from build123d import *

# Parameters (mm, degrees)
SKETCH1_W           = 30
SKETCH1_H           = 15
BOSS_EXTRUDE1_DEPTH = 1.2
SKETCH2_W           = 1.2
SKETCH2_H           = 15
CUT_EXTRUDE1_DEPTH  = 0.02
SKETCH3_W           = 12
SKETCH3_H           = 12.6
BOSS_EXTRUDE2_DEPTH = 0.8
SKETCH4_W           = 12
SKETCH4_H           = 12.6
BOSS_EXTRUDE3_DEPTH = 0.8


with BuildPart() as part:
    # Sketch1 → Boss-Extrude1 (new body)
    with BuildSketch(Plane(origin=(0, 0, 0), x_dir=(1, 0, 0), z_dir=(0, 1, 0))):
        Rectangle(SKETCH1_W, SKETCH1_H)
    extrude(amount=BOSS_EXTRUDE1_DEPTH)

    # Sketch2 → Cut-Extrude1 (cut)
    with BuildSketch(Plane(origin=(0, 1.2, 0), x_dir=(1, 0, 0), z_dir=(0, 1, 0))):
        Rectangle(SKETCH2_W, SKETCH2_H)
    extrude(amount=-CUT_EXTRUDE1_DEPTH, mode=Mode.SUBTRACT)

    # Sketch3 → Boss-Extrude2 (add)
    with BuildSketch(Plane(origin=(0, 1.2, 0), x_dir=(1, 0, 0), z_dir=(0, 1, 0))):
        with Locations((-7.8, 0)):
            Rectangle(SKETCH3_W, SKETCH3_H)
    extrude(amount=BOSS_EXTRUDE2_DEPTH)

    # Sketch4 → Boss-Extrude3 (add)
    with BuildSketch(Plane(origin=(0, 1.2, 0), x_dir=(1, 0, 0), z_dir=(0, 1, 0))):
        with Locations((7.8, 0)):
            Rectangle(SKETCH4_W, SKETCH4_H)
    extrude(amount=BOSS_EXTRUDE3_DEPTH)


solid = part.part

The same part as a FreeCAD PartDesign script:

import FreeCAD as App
import Part
import Sketcher
Q = App.Units.Quantity


def add_polygon(sketch, points):
    """Adds a closed chain of lines whose ends are joined by coincident constraints."""
    first, n = sketch.GeometryCount, len(points)
    for a, b in zip(points, points[1:] + points[:1]):
        sketch.addGeometry(Part.LineSegment(App.Vector(*a, 0), App.Vector(*b, 0)), False)
    for i in range(n):
        sketch.addConstraint(Sketcher.Constraint("Coincident", first + i, 2, first + (i + 1) % n, 1))

doc = App.newDocument("Part")
body = doc.addObject("PartDesign::Body", "Body")

sketch1 = body.newObject("Sketcher::SketchObject", "Sketch")
sketch1.AttachmentSupport = (doc.getObject("XZ_Plane"), [""])
sketch1.MapMode = "FlatFace"
add_polygon(sketch1, [(-15, -8), (-15, 8), (15, 8), (15, -8)])
sketch1.addConstraint(Sketcher.Constraint("Vertical", 0))
sketch1.addConstraint(Sketcher.Constraint("Horizontal", 1))
sketch1.addConstraint(Sketcher.Constraint("Vertical", 2))
sketch1.addConstraint(Sketcher.Constraint("Horizontal", 3))
sketch1.addConstraint(Sketcher.Constraint("Symmetric", 0, 2, 2, 2, -1, 1))
sketch1.addConstraint(Sketcher.Constraint("DistanceX", 1, 1, 1, 2, Q("30 mm")))
sketch1.addConstraint(Sketcher.Constraint("DistanceY", 0, 1, 0, 2, Q("15 mm")))
pad1 = body.newObject("PartDesign::Pad", "Pad")
pad1.Profile = sketch1
pad1.Length = 1.2
pad1.Reversed = True

sketch2 = body.newObject("Sketcher::SketchObject", "Sketch001")
sketch2.AttachmentSupport = (doc.getObject("XZ_Plane"), [""])
sketch2.MapMode = "FlatFace"
sketch2.AttachmentOffset = App.Placement(App.Vector(0, 0, -1.2), App.Rotation())
add_polygon(sketch2, [(-0.6, -7.5), (-0.6, 7.5), (0.6, 7.5), (0.6, -7.5)])
sketch2.addConstraint(Sketcher.Constraint("Vertical", 0))
sketch2.addConstraint(Sketcher.Constraint("Horizontal", 1))
sketch2.addConstraint(Sketcher.Constraint("Vertical", 2))
sketch2.addConstraint(Sketcher.Constraint("Horizontal", 3))
sketch2.addConstraint(Sketcher.Constraint("Symmetric", 0, 2, 2, 2, -1, 1))
sketch2.addConstraint(Sketcher.Constraint("DistanceY", 0, 1, 0, 2, Q("15 mm")))
sketch2.addConstraint(Sketcher.Constraint("DistanceX", 1, 1, 1, 2, Q("1.2 mm")))
pocket1 = body.newObject("PartDesign::Pocket", "Pocket")
pocket1.Profile = sketch2
pocket1.Length = 0.02
pocket1.Reversed = True

sketch3 = body.newObject("Sketcher::SketchObject", "Sketch002")
sketch3.AttachmentSupport = (doc.getObject("XZ_Plane"), [""])
sketch3.MapMode = "FlatFace"
sketch3.AttachmentOffset = App.Placement(App.Vector(0, 0, -1.2), App.Rotation())
add_polygon(sketch3, [(-14, -6), (-14, 6), (-2, 6), (-2, -6)])
sketch3.addConstraint(Sketcher.Constraint("Vertical", 0))
sketch3.addConstraint(Sketcher.Constraint("Horizontal", 1))
sketch3.addConstraint(Sketcher.Constraint("Vertical", 2))
sketch3.addConstraint(Sketcher.Constraint("Horizontal", 3))
sketch3.addConstraint(Sketcher.Constraint("DistanceX", 1, 1, 1, 2, Q("12 mm")))
sketch3.addConstraint(Sketcher.Constraint("DistanceY", 0, 1, 0, 2, Q("12.6 mm")))
sketch3.addConstraint(Sketcher.Constraint("DistanceX", 0, 2, -1, 1, Q("13.8 mm")))
sketch3.addConstraint(Sketcher.Constraint("DistanceY", -1, 1, 0, 2, Q("6.3 mm")))
pad2 = body.newObject("PartDesign::Pad", "Pad001")
pad2.Profile = sketch3
pad2.Length = 0.8
pad2.Reversed = True

sketch4 = body.newObject("Sketcher::SketchObject", "Sketch003")
sketch4.AttachmentSupport = (doc.getObject("XZ_Plane"), [""])
sketch4.MapMode = "FlatFace"
sketch4.AttachmentOffset = App.Placement(App.Vector(0, 0, -1.2), App.Rotation())
add_polygon(sketch4, [(2, -6), (2, 6), (14, 6), (14, -6)])
sketch4.addConstraint(Sketcher.Constraint("Vertical", 0))
sketch4.addConstraint(Sketcher.Constraint("Horizontal", 1))
sketch4.addConstraint(Sketcher.Constraint("Vertical", 2))
sketch4.addConstraint(Sketcher.Constraint("Horizontal", 3))
sketch4.addConstraint(Sketcher.Constraint("DistanceX", 1, 1, 1, 2, Q("12 mm")))
sketch4.addConstraint(Sketcher.Constraint("DistanceY", 0, 1, 0, 2, Q("12.6 mm")))
sketch4.addConstraint(Sketcher.Constraint("DistanceX", -1, 1, 0, 2, Q("1.8 mm")))
sketch4.addConstraint(Sketcher.Constraint("DistanceY", -1, 1, 0, 2, Q("6.3 mm")))
pad3 = body.newObject("PartDesign::Pad", "Pad002")
pad3.Profile = sketch4
pad3.Length = 0.8
pad3.Reversed = True

doc.recompute()
